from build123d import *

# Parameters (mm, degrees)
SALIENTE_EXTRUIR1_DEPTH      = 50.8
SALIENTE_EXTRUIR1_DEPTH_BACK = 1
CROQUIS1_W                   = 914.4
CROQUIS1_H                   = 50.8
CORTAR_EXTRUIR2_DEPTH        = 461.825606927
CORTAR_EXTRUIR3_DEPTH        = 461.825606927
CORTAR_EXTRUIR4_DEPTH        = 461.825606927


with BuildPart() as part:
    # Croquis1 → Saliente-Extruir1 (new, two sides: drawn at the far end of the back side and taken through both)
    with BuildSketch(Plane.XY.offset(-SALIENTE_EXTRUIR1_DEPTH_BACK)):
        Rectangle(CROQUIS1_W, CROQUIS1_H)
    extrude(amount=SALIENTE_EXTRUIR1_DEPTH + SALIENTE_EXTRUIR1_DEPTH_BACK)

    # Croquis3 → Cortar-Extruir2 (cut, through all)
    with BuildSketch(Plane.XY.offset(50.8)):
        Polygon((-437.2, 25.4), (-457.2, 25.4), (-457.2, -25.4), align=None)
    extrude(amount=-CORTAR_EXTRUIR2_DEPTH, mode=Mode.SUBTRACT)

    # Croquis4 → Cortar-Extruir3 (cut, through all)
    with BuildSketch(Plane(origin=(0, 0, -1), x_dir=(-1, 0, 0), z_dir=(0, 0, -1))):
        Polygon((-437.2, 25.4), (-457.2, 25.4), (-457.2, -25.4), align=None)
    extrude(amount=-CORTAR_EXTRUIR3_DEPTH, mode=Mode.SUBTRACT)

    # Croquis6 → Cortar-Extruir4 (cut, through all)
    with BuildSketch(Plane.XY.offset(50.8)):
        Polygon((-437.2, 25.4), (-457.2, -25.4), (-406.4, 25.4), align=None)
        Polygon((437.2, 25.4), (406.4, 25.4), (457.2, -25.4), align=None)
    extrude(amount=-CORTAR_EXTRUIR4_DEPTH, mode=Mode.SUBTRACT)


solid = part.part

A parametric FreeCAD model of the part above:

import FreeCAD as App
import Part
import Sketcher
Q = App.Units.Quantity

doc = App.newDocument("Part")
body = doc.addObject("PartDesign::Body", "Body")

# Sketch on XY plane
sketch1 = body.newObject("Sketcher::SketchObject", "Sketch")
sketch1.AttachmentSupport = (doc.getObject("XY_Plane"), [""])
sketch1.MapMode = "FlatFace"
sketch1.addGeometry([
    Part.LineSegment(App.Vector(-457.2, 25.4, 0), App.Vector(-457.2, -25.4, 0)),
    Part.LineSegment(App.Vector(-457.2, -25.4, 0), App.Vector(457.2, -25.4, 0)),
    Part.LineSegment(App.Vector(457.2, -25.4, 0), App.Vector(457.2, 25.4, 0)),
    Part.LineSegment(App.Vector(457.2, 25.4, 0), App.Vector(-457.2, 25.4, 0)),
], False)
sketch1.addConstraint([
    Sketcher.Constraint("Coincident", 0, 2, 1, 1),
    Sketcher.Constraint("Coincident", 1, 2, 2, 1),
    Sketcher.Constraint("Coincident", 2, 2, 3, 1),
    Sketcher.Constraint("Coincident", 3, 2, 0, 1),
    Sketcher.Constraint("Vertical", 0),
    Sketcher.Constraint("Horizontal", 1),
    Sketcher.Constraint("Vertical", 2),
    Sketcher.Constraint("Horizontal", 3),
    Sketcher.Constraint("Symmetric", 0, 2, 2, 2, -1, 1),
    Sketcher.Constraint("DistanceX", 1, 1, 1, 2, Q("914.4 mm")),
    Sketcher.Constraint("DistanceY", 0, 2, 0, 1, Q("50.8 mm")),
])
pad1 = body.newObject("PartDesign::Pad", "Pad")
pad1.Profile = sketch1
pad1.Type = "TwoLengths"
pad1.Length = 50.8
pad1.Length2 = 1

# Sketch on XY plane
sketch2 = body.newObject("Sketcher::SketchObject", "Sketch001")
sketch2.AttachmentSupport = (doc.getObject("XY_Plane"), [""])
sketch2.MapMode = "FlatFace"
sketch2.AttachmentOffset = App.Placement(App.Vector(0, 0, 50.8), App.Rotation())
sketch2.addGeometry([
    Part.LineSegment(App.Vector(-437.2, 25.4, 0), App.Vector(-457.2, 25.4, 0)),
    Part.LineSegment(App.Vector(-457.2, 25.4, 0), App.Vector(-457.2, -25.4, 0)),
    Part.LineSegment(App.Vector(-457.2, -25.4, 0), App.Vector(-437.2, 25.4, 0)),
], False)
sketch2.addConstraint([
    Sketcher.Constraint("Coincident", 0, 2, 1, 1),
    Sketcher.Constraint("Coincident", 1, 2, 2, 1),
    Sketcher.Constraint("Coincident", 2, 2, 0, 1),
    Sketcher.Constraint("Horizontal", 0),
    Sketcher.Constraint("Vertical", 1),
    Sketcher.Constraint("DistanceX", 0, 2, 0, 1, Q("20 mm")),
    Sketcher.Constraint("DistanceY", 1, 2, 1, 1, Q("50.8 mm")),
    Sketcher.Constraint("DistanceX", 0, 2, -1, 1, Q("457.2 mm")),
    Sketcher.Constraint("DistanceY", -1, 1, 0, 2, Q("25.4 mm")),
])
pocket1 = body.newObject("PartDesign::Pocket", "Pocket")
pocket1.Profile = sketch2
pocket1.Type = "ThroughAll"

# Sketch on XY plane
sketch3 = body.newObject("Sketcher::SketchObject", "Sketch002")
sketch3.AttachmentSupport = (doc.getObject("XY_Plane"), [""])
sketch3.MapMode = "FlatFace"
sketch3.AttachmentOffset = App.Placement(App.Vector(0, 0, -1), App.Rotation())
sketch3.addGeometry([
    Part.LineSegment(App.Vector(437.2, 25.4, 0), App.Vector(457.2, 25.4, 0)),
    Part.LineSegment(App.Vector(457.2, 25.4, 0), App.Vector(457.2, -25.4, 0)),
    Part.LineSegment(App.Vector(457.2, -25.4, 0), App.Vector(437.2, 25.4, 0)),
], False)
sketch3.addConstraint([
    Sketcher.Constraint("Coincident", 0, 2, 1, 1),
    Sketcher.Constraint("Coincident", 1, 2, 2, 1),
    Sketcher.Constraint("Coincident", 2, 2, 0, 1),
    Sketcher.Constraint("Horizontal", 0),
    Sketcher.Constraint("Vertical", 1),
    Sketcher.Constraint("DistanceX", 0, 1, 0, 2, Q("20 mm")),
    Sketcher.Constraint("DistanceY", 1, 2, 1, 1, Q("50.8 mm")),
    Sketcher.Constraint("DistanceX", -1, 1, 0, 2, Q("457.2 mm")),
    Sketcher.Constraint("DistanceY", -1, 1, 0, 2, Q("25.4 mm")),
])
pocket2 = body.newObject("PartDesign::Pocket", "Pocket001")
pocket2.Profile = sketch3
pocket2.Type = "ThroughAll"
pocket2.Reversed = True

# Sketch on XY plane
sketch4 = body.newObject("Sketcher::SketchObject", "Sketch003")
sketch4.AttachmentSupport = (doc.getObject("XY_Plane"), [""])
sketch4.MapMode = "FlatFace"
sketch4.AttachmentOffset = App.Placement(App.Vector(0, 0, 50.8), App.Rotation())
sketch4.addGeometry([
    Part.LineSegment(App.Vector(-437.2, 25.4, 0), App.Vector(-457.2, -25.4, 0)),  # 0
    Part.LineSegment(App.Vector(-457.2, -25.4, 0), App.Vector(-406.4, 25.4, 0)),  # 1
    Part.LineSegment(App.Vector(-406.4, 25.4, 0), App.Vector(-437.2, 25.4, 0)),  # 2
    Part.LineSegment(App.Vector(437.2, 25.4, 0), App.Vector(406.4, 25.4, 0)),  # 3
    Part.LineSegment(App.Vector(406.4, 25.4, 0), App.Vector(457.2, -25.4, 0)),  # 4
    Part.LineSegment(App.Vector(457.2, -25.4, 0), App.Vector(437.2, 25.4, 0)),  # 5
], False)
sketch4.addConstraint([
    Sketcher.Constraint("Coincident", 0, 2, 1, 1),
    Sketcher.Constraint("Coincident", 1, 2, 2, 1),
    Sketcher.Constraint("Coincident", 2, 2, 0, 1),
    Sketcher.Constraint("Coincident", 3, 2, 4, 1),
    Sketcher.Constraint("Coincident", 4, 2, 5, 1),
    Sketcher.Constraint("Coincident", 5, 2, 3, 1),
    Sketcher.Constraint("Horizontal", 2),
    Sketcher.Constraint("Horizontal", 3),
    Sketcher.Constraint("Symmetric", 1, 2, 3, 2, -2),
    Sketcher.Constraint("Symmetric", 0, 2, 4, 2, -2),
    Sketcher.Constraint("Perpendicular", 1, 4),
    Sketcher.Constraint("Equal", 2, 3),
    Sketcher.Constraint("DistanceX", 2, 2, 2, 1, Q("30.8 mm")),
    Sketcher.Constraint("DistanceX", 0, 2, 2, 2, Q("20 mm")),
    Sketcher.Constraint("DistanceX", 0, 2, -1, 1, Q("457.2 mm")),
    Sketcher.Constraint("DistanceY", 0, 2, -1, 1, Q("25.4 mm")),
])
pocket3 = body.newObject("PartDesign::Pocket", "Pocket002")
pocket3.Profile = sketch4
pocket3.Type = "ThroughAll"

doc.recompute()
